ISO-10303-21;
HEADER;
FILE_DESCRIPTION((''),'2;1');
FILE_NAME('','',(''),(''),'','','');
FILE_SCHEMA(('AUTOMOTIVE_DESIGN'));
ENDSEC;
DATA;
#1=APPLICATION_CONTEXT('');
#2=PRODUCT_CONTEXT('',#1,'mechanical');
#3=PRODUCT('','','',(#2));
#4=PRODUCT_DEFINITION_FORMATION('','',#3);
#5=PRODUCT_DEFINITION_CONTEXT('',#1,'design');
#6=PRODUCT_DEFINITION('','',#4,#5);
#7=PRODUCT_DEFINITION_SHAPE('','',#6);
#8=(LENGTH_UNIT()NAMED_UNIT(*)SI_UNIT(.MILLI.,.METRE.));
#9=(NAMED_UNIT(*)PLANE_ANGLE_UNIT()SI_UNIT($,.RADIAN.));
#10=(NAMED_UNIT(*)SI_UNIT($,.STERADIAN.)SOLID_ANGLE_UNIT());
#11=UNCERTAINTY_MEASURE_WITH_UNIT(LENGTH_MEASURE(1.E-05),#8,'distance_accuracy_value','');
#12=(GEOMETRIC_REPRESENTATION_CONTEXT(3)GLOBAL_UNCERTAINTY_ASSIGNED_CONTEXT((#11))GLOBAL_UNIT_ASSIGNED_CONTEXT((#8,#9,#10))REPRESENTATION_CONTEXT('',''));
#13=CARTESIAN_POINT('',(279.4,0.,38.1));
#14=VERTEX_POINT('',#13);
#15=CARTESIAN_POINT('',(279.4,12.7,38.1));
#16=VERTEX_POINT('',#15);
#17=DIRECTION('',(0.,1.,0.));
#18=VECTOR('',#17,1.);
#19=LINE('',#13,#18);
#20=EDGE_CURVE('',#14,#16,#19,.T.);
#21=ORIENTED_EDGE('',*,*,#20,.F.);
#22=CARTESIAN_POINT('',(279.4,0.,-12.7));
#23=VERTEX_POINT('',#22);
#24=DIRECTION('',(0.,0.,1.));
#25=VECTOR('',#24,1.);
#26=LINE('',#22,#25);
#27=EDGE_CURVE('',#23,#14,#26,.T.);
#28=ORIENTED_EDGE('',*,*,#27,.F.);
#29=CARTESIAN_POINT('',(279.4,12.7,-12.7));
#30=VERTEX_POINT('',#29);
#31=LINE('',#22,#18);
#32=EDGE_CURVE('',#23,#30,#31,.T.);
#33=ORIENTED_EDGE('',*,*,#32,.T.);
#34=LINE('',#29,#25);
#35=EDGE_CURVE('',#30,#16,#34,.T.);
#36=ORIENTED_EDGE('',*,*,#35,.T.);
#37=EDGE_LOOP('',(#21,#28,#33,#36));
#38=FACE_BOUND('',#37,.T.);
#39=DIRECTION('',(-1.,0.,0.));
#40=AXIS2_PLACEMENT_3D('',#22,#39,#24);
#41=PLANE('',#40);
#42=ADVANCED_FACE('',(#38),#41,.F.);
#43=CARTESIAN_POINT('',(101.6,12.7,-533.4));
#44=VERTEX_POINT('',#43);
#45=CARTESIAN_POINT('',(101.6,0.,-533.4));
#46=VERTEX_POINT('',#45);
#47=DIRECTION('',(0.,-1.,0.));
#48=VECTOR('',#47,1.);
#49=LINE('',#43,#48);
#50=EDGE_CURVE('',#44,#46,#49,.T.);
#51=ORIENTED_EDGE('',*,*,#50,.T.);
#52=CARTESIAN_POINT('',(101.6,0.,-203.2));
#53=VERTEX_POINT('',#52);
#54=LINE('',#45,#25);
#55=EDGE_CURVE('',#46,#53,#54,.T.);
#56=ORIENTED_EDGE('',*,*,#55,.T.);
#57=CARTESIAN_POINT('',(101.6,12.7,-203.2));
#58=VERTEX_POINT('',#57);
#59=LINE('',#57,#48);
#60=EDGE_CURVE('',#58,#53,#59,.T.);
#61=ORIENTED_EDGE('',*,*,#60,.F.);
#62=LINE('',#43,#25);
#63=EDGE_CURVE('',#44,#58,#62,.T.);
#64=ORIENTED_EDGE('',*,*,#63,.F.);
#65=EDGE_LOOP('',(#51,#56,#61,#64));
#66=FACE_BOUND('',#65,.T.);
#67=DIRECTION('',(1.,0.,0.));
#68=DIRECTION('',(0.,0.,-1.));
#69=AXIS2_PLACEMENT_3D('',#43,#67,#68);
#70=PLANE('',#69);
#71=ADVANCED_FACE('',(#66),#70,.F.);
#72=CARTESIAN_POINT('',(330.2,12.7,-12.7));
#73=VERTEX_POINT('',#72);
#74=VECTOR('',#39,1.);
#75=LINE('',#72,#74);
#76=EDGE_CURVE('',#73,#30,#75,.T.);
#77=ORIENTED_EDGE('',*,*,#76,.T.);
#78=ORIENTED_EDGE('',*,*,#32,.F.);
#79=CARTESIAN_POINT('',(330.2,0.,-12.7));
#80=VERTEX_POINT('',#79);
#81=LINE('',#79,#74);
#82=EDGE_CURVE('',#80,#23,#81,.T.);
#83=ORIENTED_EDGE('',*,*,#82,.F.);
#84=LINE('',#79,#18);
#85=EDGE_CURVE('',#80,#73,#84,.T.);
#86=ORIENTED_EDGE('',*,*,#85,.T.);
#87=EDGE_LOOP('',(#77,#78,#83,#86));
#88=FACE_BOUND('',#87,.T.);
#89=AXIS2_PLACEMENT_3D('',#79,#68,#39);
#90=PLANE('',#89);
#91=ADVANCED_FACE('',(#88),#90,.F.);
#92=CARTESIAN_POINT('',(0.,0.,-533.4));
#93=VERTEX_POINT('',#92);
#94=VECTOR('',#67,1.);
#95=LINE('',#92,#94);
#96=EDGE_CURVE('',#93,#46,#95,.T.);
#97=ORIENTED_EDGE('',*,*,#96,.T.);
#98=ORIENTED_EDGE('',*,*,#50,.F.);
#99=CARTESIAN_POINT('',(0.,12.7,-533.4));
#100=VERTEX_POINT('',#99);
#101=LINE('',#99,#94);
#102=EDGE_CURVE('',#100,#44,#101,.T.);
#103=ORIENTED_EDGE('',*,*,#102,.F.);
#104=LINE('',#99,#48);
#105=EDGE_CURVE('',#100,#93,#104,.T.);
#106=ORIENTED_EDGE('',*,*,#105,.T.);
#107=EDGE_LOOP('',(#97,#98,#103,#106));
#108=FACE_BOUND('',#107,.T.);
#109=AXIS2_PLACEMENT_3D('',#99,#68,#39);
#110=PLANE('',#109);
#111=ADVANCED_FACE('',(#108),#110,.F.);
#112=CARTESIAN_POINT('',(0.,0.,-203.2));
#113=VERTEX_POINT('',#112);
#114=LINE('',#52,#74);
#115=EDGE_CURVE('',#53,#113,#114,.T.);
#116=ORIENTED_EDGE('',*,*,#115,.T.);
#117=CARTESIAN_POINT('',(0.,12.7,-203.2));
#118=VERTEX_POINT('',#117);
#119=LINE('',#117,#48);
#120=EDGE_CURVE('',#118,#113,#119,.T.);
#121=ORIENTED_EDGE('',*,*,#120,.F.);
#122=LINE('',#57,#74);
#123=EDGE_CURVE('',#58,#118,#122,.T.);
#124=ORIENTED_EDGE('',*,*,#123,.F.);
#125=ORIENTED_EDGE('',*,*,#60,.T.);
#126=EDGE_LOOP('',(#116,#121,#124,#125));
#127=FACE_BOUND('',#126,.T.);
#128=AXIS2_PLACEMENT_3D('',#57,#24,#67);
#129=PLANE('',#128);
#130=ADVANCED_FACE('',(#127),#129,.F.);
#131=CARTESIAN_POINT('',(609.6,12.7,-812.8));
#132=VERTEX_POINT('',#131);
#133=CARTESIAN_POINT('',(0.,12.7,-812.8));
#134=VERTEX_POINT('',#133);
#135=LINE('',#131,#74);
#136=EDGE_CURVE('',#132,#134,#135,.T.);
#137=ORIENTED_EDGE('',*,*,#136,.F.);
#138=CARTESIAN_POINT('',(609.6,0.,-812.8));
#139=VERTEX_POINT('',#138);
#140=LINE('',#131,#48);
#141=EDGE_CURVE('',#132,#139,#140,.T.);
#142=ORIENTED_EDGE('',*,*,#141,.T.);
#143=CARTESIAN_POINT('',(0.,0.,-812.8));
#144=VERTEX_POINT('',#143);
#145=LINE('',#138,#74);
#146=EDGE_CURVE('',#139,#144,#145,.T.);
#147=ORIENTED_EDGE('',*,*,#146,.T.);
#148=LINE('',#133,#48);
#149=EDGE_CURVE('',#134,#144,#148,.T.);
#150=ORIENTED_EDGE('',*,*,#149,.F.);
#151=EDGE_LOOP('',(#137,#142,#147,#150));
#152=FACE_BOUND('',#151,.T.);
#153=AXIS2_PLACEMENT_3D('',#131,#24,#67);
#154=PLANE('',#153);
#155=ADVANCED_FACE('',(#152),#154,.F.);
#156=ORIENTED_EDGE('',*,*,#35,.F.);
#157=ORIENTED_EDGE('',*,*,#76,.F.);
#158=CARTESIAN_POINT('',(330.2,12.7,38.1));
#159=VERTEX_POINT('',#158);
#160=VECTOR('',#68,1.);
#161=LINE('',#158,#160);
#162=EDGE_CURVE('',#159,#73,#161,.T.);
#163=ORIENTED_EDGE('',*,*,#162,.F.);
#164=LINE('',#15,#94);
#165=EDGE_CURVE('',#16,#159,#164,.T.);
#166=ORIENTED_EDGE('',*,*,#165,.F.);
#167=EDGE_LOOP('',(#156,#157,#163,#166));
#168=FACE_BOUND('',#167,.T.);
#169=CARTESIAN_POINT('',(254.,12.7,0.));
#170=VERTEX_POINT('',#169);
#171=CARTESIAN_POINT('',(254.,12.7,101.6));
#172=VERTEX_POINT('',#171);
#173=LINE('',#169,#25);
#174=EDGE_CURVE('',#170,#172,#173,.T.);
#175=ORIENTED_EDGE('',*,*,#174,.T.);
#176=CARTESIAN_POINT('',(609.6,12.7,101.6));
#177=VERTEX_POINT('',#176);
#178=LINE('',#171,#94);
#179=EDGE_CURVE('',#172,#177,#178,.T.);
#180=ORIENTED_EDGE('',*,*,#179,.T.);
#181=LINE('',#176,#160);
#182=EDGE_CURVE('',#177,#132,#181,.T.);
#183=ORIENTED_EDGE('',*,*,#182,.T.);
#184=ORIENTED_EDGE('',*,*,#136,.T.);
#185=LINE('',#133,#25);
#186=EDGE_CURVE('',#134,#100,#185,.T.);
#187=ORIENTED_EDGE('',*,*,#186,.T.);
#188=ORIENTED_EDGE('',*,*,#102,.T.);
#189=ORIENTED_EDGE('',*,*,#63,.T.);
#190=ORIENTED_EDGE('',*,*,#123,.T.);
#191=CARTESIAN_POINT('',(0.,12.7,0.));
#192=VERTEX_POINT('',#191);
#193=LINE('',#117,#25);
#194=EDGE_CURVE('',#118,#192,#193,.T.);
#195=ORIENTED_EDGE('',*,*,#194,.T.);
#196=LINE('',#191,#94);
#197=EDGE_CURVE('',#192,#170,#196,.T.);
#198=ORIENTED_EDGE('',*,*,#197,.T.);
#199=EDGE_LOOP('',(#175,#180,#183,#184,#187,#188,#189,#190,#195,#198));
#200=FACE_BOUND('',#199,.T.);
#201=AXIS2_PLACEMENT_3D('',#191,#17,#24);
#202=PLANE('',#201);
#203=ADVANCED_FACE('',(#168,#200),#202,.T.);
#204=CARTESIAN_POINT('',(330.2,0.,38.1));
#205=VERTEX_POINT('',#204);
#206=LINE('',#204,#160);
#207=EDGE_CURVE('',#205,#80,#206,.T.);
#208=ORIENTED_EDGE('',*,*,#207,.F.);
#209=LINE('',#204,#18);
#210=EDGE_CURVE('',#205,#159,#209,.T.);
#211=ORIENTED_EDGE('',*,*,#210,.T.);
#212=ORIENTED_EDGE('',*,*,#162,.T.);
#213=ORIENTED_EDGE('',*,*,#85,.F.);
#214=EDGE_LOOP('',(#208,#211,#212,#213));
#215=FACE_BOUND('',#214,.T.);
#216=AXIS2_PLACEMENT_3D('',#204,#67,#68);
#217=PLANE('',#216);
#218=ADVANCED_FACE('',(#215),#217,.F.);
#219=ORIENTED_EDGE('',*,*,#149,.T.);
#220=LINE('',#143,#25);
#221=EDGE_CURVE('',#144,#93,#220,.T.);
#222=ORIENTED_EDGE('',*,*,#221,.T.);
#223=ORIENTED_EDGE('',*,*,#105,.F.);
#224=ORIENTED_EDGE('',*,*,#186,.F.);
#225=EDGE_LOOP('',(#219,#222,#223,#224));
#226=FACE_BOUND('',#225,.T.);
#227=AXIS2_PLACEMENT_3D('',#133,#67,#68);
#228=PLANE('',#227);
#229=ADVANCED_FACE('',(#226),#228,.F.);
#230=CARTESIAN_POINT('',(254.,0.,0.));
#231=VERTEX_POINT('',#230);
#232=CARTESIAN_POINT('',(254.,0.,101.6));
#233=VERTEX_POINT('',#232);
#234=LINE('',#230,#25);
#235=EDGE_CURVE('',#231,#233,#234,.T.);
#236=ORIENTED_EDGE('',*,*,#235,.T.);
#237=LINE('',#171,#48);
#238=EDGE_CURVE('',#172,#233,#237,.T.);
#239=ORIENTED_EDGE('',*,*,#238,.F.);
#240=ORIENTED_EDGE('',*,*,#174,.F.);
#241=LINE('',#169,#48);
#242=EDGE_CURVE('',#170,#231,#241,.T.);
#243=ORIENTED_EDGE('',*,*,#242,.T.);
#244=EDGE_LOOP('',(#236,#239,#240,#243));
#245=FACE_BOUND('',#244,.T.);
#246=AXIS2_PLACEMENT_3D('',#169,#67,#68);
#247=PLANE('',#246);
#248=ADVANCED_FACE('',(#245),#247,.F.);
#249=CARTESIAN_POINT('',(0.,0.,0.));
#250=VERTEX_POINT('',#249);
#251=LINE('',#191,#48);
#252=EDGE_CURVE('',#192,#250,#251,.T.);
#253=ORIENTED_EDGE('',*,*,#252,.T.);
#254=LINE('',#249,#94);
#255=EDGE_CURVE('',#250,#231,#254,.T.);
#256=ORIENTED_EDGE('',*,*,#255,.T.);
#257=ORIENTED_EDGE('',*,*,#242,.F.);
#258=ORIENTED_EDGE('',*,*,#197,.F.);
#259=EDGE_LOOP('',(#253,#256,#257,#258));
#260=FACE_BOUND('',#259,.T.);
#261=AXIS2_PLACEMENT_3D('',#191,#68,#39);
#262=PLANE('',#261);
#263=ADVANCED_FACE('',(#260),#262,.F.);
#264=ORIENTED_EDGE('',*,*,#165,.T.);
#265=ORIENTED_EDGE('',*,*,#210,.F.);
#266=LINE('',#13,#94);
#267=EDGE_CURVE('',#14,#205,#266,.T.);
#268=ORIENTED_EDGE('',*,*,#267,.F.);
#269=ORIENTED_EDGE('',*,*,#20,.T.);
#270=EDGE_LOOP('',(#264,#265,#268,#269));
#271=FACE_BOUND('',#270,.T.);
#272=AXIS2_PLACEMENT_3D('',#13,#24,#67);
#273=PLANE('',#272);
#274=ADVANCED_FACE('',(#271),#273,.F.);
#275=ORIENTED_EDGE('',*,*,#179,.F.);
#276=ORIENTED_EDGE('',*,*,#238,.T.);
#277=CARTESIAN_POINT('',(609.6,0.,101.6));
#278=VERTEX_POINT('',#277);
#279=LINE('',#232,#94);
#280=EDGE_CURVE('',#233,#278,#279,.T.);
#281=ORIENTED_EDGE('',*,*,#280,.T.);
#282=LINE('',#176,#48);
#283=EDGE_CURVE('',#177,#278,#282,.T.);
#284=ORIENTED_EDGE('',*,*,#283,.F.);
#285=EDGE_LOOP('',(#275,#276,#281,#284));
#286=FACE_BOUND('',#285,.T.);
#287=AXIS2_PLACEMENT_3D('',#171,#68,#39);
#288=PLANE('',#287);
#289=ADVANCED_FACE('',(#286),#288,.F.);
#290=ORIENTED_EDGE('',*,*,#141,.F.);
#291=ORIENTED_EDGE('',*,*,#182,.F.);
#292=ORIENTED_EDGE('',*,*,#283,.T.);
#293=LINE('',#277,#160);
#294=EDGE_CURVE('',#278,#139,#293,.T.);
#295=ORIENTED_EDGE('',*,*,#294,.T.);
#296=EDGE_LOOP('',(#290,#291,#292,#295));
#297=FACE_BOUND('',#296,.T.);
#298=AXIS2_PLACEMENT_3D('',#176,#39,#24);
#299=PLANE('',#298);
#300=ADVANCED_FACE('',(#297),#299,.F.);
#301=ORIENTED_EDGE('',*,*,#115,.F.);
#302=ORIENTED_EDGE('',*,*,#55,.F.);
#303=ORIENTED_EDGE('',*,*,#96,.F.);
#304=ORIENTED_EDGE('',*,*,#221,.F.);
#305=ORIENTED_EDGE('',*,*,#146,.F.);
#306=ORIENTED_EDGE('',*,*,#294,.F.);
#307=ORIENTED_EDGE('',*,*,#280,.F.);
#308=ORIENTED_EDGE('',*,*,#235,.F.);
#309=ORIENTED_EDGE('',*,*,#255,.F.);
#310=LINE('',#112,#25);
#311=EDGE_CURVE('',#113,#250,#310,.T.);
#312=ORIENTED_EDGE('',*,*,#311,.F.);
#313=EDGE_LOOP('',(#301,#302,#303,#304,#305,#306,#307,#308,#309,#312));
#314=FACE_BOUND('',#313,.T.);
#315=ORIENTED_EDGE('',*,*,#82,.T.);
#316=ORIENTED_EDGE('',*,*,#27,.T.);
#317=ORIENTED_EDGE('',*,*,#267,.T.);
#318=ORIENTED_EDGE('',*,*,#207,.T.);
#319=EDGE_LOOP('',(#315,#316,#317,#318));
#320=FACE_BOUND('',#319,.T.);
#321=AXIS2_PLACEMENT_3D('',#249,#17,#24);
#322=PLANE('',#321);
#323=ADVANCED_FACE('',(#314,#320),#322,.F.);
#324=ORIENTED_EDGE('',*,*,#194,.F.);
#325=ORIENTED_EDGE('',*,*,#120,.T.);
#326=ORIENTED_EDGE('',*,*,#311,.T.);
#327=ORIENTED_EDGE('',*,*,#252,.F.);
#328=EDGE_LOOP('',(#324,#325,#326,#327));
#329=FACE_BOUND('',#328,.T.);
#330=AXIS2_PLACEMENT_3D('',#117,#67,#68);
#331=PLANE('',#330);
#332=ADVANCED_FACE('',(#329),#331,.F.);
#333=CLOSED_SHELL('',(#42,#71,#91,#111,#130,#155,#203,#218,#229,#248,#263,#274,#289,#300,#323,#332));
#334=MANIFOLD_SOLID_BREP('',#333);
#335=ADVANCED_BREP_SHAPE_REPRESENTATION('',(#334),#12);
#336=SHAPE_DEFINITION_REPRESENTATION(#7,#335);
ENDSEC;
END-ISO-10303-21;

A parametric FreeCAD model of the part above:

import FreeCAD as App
import Part
import Sketcher
Q = App.Units.Quantity


def add_polygon(sketch, points):
    """Adds a closed chain of lines whose ends are joined by coincident constraints."""
    first, n = sketch.GeometryCount, len(points)
    for a, b in zip(points, points[1:] + points[:1]):
        sketch.addGeometry(Part.LineSegment(App.Vector(*a, 0), App.Vector(*b, 0)), False)
    for i in range(n):
        sketch.addConstraint(Sketcher.Constraint("Coincident", first + i, 2, first + (i + 1) % n, 1))

doc = App.newDocument("Part")
body = doc.addObject("PartDesign::Body", "Body")

sketch1 = body.newObject("Sketcher::SketchObject", "Sketch")
sketch1.AttachmentSupport = (doc.getObject("XZ_Plane"), [""])
sketch1.MapMode = "FlatFace"
add_polygon(sketch1, [(0, 0), (254, 0), (254, 101.6), (609.6, 101.6), (609.6, -812.8), (0, -812.8), (0, -533.4), (101.6, -533.4), (101.6, -203.2), (0, -203.2)])
sketch1.addConstraint(Sketcher.Constraint("Horizontal", 0))
sketch1.addConstraint(Sketcher.Constraint("Vertical", 1))
sketch1.addConstraint(Sketcher.Constraint("Horizontal", 2))
sketch1.addConstraint(Sketcher.Constraint("Vertical", 3))
sketch1.addConstraint(Sketcher.Constraint("Horizontal", 4))
sketch1.addConstraint(Sketcher.Constraint("Vertical", 5))
sketch1.addConstraint(Sketcher.Constraint("Horizontal", 6))
sketch1.addConstraint(Sketcher.Constraint("Vertical", 7))
sketch1.addConstraint(Sketcher.Constraint("Horizontal", 8))
sketch1.addConstraint(Sketcher.Constraint("Vertical", 9))
sketch1.addConstraint(Sketcher.Constraint("Coincident", 9, 2, -1, 1))
sketch1.addConstraint(Sketcher.Constraint("PointOnObject", 4, 2, -2))
sketch1.addConstraint(Sketcher.Constraint("Equal", 8, 1))
sketch1.addConstraint(Sketcher.Constraint("DistanceX", 0, 1, 0, 2, Q("10 in")))
sketch1.addConstraint(Sketcher.Constraint("DistanceX", 2, 1, 2, 2, Q("14 in")))
sketch1.addConstraint(Sketcher.Constraint("DistanceX", 6, 1, 6, 2, Q("4 in")))
sketch1.addConstraint(Sketcher.Constraint("DistanceY", 3, 2, 3, 1, Q("36 in")))
sketch1.addConstraint(Sketcher.Constraint("DistanceY", 5, 1, 5, 2, Q("11 in")))
sketch1.addConstraint(Sketcher.Constraint("DistanceY", 7, 1, 7, 2, Q("13 in")))
pad1 = body.newObject("PartDesign::Pad", "Pad")
pad1.Profile = sketch1
pad1.Length = Q("0.5 in")
pad1.Reversed = True

sketch2 = body.newObject("Sketcher::SketchObject", "Sketch001")
sketch2.AttachmentSupport = (doc.getObject("XZ_Plane"), [""])
sketch2.MapMode = "FlatFace"
sketch2.AttachmentOffset = App.Placement(App.Vector(0, 0, -0.5 * 25.4), App.Rotation())
add_polygon(sketch2, [(279.4, -12.7), (279.4, 38.1), (330.2, 38.1), (330.2, -12.7)])
sketch2.addConstraint(Sketcher.Constraint("Vertical", 0))
sketch2.addConstraint(Sketcher.Constraint("Horizontal", 1))
sketch2.addConstraint(Sketcher.Constraint("Vertical", 2))
sketch2.addConstraint(Sketcher.Constraint("Horizontal", 3))
sketch2.addConstraint(Sketcher.Constraint("Equal", 3, 0))
sketch2.addConstraint(Sketcher.Constraint("DistanceX", 1, 1, 1, 2, Q("2 in")))
sketch2.addConstraint(Sketcher.Constraint("DistanceX", -1, 1, 0, 2, Q("11 in")))
sketch2.addConstraint(Sketcher.Constraint("DistanceY", -1, 1, 0, 2, Q("1.5 in")))
pocket1 = body.newObject("PartDesign::Pocket", "Pocket")
pocket1.Profile = sketch2
pocket1.Length = Q("0.5 in")
pocket1.Reversed = True

doc.recompute()
